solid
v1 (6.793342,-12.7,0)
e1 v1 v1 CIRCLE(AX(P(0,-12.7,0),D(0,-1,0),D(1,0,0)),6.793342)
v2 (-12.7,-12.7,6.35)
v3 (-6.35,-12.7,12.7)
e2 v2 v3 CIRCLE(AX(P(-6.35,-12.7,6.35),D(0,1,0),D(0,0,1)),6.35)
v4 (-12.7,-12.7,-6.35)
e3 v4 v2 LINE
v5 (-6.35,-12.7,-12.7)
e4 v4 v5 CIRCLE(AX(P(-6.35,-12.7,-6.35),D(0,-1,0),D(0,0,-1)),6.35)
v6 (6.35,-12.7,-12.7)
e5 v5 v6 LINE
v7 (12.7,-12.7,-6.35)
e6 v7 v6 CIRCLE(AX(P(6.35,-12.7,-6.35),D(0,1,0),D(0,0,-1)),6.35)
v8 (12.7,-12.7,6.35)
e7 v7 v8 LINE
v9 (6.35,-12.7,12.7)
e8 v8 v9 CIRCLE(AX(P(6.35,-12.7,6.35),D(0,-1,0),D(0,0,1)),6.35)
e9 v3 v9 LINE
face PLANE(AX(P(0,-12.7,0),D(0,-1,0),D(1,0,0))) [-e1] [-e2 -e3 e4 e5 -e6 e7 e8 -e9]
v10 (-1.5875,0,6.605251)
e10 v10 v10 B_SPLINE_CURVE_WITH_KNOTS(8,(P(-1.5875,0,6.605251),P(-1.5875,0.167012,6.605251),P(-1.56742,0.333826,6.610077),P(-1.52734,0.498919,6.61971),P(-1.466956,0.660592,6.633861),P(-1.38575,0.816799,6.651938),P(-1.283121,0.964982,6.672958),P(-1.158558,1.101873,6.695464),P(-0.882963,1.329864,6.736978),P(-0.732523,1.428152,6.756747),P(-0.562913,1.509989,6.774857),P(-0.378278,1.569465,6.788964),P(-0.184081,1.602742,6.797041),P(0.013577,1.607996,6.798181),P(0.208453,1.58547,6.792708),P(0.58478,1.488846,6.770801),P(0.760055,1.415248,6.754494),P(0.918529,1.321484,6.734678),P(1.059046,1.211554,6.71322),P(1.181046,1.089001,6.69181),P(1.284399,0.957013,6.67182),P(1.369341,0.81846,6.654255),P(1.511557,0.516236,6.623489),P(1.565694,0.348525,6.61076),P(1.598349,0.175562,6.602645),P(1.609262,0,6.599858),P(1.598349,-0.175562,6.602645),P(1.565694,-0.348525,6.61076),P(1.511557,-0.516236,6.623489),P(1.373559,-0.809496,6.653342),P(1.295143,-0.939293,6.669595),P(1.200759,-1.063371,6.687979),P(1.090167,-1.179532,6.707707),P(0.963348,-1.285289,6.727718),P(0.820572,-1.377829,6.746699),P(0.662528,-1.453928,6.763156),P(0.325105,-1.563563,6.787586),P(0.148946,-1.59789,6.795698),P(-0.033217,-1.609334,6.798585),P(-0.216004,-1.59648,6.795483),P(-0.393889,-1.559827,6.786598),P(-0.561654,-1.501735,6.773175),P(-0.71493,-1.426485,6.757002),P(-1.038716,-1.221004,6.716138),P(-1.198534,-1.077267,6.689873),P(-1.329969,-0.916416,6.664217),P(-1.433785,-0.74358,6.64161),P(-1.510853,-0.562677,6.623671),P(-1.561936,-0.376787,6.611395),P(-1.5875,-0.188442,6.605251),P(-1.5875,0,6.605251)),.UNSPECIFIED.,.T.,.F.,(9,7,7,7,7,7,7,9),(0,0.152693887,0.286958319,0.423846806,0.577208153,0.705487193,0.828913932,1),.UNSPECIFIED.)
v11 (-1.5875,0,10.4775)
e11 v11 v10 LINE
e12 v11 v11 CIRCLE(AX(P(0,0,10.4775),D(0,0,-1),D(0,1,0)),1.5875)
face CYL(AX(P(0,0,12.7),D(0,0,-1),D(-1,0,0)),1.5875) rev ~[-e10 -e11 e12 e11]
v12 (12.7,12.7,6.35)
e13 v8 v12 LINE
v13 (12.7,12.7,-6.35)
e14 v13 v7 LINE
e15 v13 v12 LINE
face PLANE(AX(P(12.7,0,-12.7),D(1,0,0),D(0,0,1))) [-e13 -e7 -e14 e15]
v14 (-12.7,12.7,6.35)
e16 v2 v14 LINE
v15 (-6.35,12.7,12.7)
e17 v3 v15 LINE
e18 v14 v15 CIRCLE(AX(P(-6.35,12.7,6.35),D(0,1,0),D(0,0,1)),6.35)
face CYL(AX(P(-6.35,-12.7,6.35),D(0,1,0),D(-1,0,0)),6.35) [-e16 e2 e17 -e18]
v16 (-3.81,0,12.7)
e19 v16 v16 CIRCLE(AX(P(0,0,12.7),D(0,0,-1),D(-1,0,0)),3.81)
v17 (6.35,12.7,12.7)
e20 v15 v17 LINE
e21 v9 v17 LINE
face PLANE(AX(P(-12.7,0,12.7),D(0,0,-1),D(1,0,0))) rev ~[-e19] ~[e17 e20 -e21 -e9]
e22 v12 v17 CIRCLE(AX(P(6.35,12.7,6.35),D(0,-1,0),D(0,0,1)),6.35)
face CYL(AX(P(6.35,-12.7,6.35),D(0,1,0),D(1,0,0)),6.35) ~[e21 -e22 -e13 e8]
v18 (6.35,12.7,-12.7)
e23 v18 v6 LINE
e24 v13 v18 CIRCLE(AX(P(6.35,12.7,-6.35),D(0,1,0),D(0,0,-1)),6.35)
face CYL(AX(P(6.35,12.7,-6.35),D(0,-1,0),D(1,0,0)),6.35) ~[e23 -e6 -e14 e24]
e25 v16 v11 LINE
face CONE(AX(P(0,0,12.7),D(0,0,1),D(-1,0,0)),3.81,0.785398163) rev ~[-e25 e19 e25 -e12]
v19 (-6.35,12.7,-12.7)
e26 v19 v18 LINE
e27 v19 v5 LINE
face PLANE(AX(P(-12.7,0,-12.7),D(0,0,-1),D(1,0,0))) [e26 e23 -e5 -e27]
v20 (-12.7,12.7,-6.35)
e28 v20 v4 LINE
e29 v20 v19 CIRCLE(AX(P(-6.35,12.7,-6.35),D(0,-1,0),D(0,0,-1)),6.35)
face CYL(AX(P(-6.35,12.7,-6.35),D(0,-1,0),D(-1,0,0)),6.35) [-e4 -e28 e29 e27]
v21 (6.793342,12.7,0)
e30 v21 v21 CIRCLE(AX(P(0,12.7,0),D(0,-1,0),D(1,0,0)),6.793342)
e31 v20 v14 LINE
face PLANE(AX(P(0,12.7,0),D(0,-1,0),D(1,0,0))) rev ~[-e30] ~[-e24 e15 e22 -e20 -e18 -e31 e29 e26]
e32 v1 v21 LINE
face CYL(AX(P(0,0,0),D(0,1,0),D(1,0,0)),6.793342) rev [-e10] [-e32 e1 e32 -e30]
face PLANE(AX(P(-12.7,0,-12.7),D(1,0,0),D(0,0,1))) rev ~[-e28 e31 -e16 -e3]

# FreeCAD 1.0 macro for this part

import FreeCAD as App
import Part
import Sketcher

V = App.Vector
Q = App.Units.Quantity


def edges_at(feature, points):
    """Names of the edges that pass closest to the given points."""
    edges = feature.Shape.Edges
    near = lambda p: min(range(len(edges)), key=lambda i: edges[i].distToShape(Part.Vertex(*p))[0])
    return sorted({f"Edge{near(p) + 1}" for p in points})

doc = App.newDocument("Part")
body = doc.addObject("PartDesign::Body", "Body")

# Sketch on XZ plane
sketch1 = body.newObject("Sketcher::SketchObject", "Sketch")
sketch1.AttachmentSupport = (doc.getObject("XZ_Plane"), [""])
sketch1.MapMode = "FlatFace"
sketch1.addGeometry(Part.LineSegment(V(-12.7, 12.7, 0), V(-12.7, -12.7, 0)), False)
sketch1.addGeometry(Part.LineSegment(V(-12.7, -12.7, 0), V(12.7, -12.7, 0)), False)
sketch1.addGeometry(Part.LineSegment(V(12.7, -12.7, 0), V(12.7, 12.7, 0)), False)
sketch1.addGeometry(Part.LineSegment(V(12.7, 12.7, 0), V(-12.7, 12.7, 0)), False)
sketch1.addGeometry(Part.Circle(V(0, 0, 0), V(0, 0, 1), 6.793342), False)
sketch1.addConstraint(Sketcher.Constraint("Coincident", 0, 2, 1, 1))
sketch1.addConstraint(Sketcher.Constraint("Coincident", 1, 2, 2, 1))
sketch1.addConstraint(Sketcher.Constraint("Coincident", 2, 2, 3, 1))
sketch1.addConstraint(Sketcher.Constraint("Coincident", 3, 2, 0, 1))
sketch1.addConstraint(Sketcher.Constraint("Vertical", 0))
sketch1.addConstraint(Sketcher.Constraint("Horizontal", 1))
sketch1.addConstraint(Sketcher.Constraint("Vertical", 2))
sketch1.addConstraint(Sketcher.Constraint("Horizontal", 3))
sketch1.addConstraint(Sketcher.Constraint("Coincident", 4, 3, -1, 1))
sketch1.addConstraint(Sketcher.Constraint("Symmetric", 0, 2, 2, 2, -1, 1))
sketch1.addConstraint(Sketcher.Constraint("Equal", 3, 0))
sketch1.addConstraint(Sketcher.Constraint("DistanceX", 1, 1, 1, 2, Q("1 in")))
sketch1.addConstraint(Sketcher.Constraint("Diameter", 4, 13.586684))
pad1 = body.newObject("PartDesign::Pad", "Pad")
pad1.Profile = sketch1
pad1.Length = Q("1 in")
pad1.Midplane = True
doc.recompute()

fillet = body.newObject("PartDesign::Fillet", "Fillet")
fillet.Base = (pad1, edges_at(pad1, [
    (12.7, 0, 12.7),
    (-12.7, 0, 12.7),
    (-12.7, 0, -12.7),
    (12.7, 0, -12.7),
]))
fillet.Radius = Q("0.25 in")

# Sketch on XY plane
sketch2 = body.newObject("Sketcher::SketchObject", "Sketch001")
sketch2.AttachmentSupport = (doc.getObject("XY_Plane"), [""])
sketch2.MapMode = "FlatFace"
sketch2.AttachmentOffset = App.Placement(V(0, 0, 0.5 * 25.4), App.Rotation())
sketch2.addGeometry(Part.Circle(V(0, 0, 0), V(0, 0, 1), 1.5875), False)
sketch2.addConstraint(Sketcher.Constraint("Coincident", 0, 3, -1, 1))
sketch2.addConstraint(Sketcher.Constraint("Diameter", 0, Q("0.125 in")))
doc.recompute()
hole = body.newObject("PartDesign::Hole", "Hole")
hole.Profile = sketch2
hole.ThreadType = "None"
hole.Diameter = Q("0.125 in")
hole.DepthType = "Dimension"
hole.Depth = Q("0.5 in")
hole.DrillPoint = "Flat"
hole.HoleCutType = "Countersink"
hole.HoleCutDiameter = Q("0.3 in")
hole.HoleCutCountersinkAngle = 90

doc.recompute()
